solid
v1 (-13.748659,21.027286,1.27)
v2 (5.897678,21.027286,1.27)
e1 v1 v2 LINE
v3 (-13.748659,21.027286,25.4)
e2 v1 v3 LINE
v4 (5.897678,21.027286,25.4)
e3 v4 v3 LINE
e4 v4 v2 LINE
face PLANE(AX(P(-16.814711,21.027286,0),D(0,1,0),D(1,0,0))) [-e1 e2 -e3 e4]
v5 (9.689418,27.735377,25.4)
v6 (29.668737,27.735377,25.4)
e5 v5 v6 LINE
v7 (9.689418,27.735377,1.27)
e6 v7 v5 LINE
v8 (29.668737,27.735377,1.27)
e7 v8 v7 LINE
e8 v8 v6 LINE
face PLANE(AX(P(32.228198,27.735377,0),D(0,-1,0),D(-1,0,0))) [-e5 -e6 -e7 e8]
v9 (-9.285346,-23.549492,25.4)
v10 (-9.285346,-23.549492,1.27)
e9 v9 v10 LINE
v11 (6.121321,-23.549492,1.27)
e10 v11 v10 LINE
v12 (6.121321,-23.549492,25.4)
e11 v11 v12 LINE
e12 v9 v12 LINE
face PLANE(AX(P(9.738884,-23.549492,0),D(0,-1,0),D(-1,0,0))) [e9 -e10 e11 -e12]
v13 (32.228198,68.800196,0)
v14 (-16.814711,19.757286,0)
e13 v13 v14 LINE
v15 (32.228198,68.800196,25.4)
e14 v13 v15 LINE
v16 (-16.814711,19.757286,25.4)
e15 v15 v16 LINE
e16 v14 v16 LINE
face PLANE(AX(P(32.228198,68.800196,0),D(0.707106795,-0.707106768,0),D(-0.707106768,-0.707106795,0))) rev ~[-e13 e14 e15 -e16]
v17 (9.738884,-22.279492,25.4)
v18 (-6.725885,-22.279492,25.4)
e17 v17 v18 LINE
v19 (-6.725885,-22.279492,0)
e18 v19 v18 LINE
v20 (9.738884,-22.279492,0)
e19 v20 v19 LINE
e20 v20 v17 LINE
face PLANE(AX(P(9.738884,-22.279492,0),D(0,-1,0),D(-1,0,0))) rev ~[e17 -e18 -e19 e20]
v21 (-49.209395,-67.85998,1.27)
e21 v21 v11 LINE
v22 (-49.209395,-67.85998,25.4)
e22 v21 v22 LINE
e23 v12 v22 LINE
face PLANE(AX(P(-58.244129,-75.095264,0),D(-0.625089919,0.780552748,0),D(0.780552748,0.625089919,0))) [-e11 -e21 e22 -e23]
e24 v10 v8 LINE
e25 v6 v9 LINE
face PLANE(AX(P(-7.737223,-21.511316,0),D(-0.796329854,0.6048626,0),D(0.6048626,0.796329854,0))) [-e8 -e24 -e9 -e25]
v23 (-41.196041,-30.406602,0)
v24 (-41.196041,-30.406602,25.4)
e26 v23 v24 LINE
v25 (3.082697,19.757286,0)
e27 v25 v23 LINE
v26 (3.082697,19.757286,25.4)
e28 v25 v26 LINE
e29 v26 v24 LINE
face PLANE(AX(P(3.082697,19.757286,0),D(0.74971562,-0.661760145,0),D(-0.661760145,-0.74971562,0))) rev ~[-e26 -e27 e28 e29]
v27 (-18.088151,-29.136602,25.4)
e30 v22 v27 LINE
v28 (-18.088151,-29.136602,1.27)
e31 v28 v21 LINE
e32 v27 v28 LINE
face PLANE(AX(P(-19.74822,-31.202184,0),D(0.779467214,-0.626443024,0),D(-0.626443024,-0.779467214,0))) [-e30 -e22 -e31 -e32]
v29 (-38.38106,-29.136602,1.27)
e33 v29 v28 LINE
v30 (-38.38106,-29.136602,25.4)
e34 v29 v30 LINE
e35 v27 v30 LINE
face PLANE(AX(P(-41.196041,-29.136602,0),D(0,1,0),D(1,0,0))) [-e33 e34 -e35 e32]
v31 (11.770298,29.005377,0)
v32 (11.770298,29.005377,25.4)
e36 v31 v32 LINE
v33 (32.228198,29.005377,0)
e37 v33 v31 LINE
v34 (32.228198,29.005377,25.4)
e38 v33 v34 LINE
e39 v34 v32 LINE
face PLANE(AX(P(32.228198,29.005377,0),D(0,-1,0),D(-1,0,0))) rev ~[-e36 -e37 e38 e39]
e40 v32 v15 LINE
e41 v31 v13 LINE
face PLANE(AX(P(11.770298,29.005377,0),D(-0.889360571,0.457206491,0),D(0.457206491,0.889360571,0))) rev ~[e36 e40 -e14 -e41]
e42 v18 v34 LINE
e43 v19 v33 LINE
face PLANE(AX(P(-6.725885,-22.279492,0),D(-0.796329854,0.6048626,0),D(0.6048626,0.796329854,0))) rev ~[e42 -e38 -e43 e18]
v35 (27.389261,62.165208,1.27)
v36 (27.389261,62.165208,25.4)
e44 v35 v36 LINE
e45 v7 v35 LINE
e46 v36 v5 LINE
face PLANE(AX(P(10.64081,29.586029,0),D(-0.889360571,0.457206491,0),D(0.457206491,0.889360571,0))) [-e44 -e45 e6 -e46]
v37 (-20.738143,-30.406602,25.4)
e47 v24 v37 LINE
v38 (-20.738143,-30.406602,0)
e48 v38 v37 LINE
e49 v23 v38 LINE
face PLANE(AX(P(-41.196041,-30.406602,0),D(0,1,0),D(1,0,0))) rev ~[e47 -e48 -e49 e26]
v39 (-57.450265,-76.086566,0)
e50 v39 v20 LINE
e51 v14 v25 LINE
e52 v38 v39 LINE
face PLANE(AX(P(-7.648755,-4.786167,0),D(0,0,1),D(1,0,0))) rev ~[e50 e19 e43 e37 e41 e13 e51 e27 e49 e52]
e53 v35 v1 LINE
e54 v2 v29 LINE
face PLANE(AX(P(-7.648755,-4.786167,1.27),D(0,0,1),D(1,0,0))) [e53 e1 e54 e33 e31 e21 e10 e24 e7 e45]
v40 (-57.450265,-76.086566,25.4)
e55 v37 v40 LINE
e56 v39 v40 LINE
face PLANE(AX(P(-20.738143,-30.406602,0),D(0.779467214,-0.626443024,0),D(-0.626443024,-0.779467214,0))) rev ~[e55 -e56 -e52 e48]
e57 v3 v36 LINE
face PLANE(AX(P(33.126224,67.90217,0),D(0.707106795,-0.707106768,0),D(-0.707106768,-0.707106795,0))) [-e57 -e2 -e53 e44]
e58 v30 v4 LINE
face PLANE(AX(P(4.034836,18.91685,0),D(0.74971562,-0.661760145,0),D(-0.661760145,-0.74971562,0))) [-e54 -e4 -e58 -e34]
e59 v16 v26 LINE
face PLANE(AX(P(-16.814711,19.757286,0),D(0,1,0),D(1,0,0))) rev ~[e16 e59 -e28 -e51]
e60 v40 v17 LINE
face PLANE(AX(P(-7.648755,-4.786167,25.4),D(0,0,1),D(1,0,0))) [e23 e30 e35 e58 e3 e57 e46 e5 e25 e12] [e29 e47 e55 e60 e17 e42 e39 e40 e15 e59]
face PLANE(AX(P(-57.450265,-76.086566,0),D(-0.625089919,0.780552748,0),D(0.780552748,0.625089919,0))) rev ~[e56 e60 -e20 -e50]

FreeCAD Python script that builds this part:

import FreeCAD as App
import Part
import Sketcher
Q = App.Units.Quantity


def faces_at(feature, points):
    """Names of the faces that lie closest to the given points."""
    faces = feature.Shape.Faces
    near = lambda p: min(range(len(faces)), key=lambda i: faces[i].distToShape(Part.Vertex(*p))[0])
    return sorted({f"Face{near(p) + 1}" for p in points})

doc = App.newDocument("Part")
body = doc.addObject("PartDesign::Body", "Body")

# Sketch on XY plane
sketch1 = body.newObject("Sketcher::SketchObject", "Sketch")
sketch1.AttachmentSupport = (doc.getObject("XY_Plane"), [""])
sketch1.MapMode = "FlatFace"
sketch1.addGeometry([
    Part.LineSegment(App.Vector(11.770298, 29.005377, 0), App.Vector(32.228198, 68.800196, 0)),  # 0
    Part.LineSegment(App.Vector(32.228198, 68.800196, 0), App.Vector(-16.814711, 19.757286, 0)),  # 1
    Part.LineSegment(App.Vector(-16.814711, 19.757286, 0), App.Vector(3.082697, 19.757286, 0)),  # 2
    Part.LineSegment(App.Vector(3.082697, 19.757286, 0), App.Vector(-41.196041, -30.406602, 0)),  # 3
    Part.LineSegment(App.Vector(-41.196041, -30.406602, 0), App.Vector(-20.738143, -30.406602, 0)),  # 4
    Part.LineSegment(App.Vector(-20.738143, -30.406602, 0), App.Vector(-57.450265, -76.086566, 0)),  # 5
    Part.LineSegment(App.Vector(-57.450265, -76.086566, 0), App.Vector(9.738884, -22.279492, 0)),  # 6
    Part.LineSegment(App.Vector(9.738884, -22.279492, 0), App.Vector(-6.725885, -22.279492, 0)),  # 7
    Part.LineSegment(App.Vector(-6.725885, -22.279492, 0), App.Vector(32.228198, 29.005377, 0)),  # 8
    Part.LineSegment(App.Vector(32.228198, 29.005377, 0), App.Vector(11.770298, 29.005377, 0)),  # 9
], False)
sketch1.addConstraint([
    Sketcher.Constraint("Coincident", 0, 2, 1, 1),
    Sketcher.Constraint("Coincident", 1, 2, 2, 1),
    Sketcher.Constraint("Coincident", 2, 2, 3, 1),
    Sketcher.Constraint("Coincident", 3, 2, 4, 1),
    Sketcher.Constraint("Coincident", 4, 2, 5, 1),
    Sketcher.Constraint("Coincident", 5, 2, 6, 1),
    Sketcher.Constraint("Coincident", 6, 2, 7, 1),
    Sketcher.Constraint("Coincident", 7, 2, 8, 1),
    Sketcher.Constraint("Coincident", 8, 2, 9, 1),
    Sketcher.Constraint("Coincident", 9, 2, 0, 1),
    Sketcher.Constraint("Horizontal", 2),
    Sketcher.Constraint("Horizontal", 4),
    Sketcher.Constraint("Horizontal", 7),
    Sketcher.Constraint("Horizontal", 9),
    Sketcher.Constraint("Vertical", 0, 2, 8, 2),
    Sketcher.Constraint("Angle", 1, Q("-134.999999 deg")),
    Sketcher.Constraint("DistanceX", 9, 2, 9, 1, Q("20.4579 mm")),
    Sketcher.Constraint("DistanceX", 7, 2, 7, 1, Q("16.464769 mm")),
    Sketcher.Constraint("DistanceY", 3, 2, -1, 1, Q("30.406602 mm")),
    Sketcher.Constraint("DistanceX", 2, 2, 0, 2, Q("29.145501 mm")),
    Sketcher.Constraint("Distance", 0, Q("44.745428 mm")),
    Sketcher.Constraint("Distance", 8, Q("64.401539 mm")),
    Sketcher.Constraint("DistanceX", 2, 1, 2, 2, Q("19.897408 mm")),
    Sketcher.Constraint("DistanceX", 4, 1, 4, 2, Q("20.457897 mm")),
    Sketcher.Constraint("DistanceX", 1, 2, -1, 1, Q("16.814711 mm")),
    Sketcher.Constraint("DistanceX", 3, 2, -1, 1, Q("41.196041 mm")),
    Sketcher.Constraint("DistanceY", 6, 2, -1, 1, Q("22.279492 mm")),
    Sketcher.Constraint("DistanceX", 5, 2, 4, 2, Q("36.712121 mm")),
    Sketcher.Constraint("DistanceY", 5, 2, 1, 2, Q("95.843852 mm")),
    Sketcher.Constraint("DistanceX", 5, 2, 6, 2, Q("67.189149 mm")),
])
pad1 = body.newObject("PartDesign::Pad", "Pad")
pad1.Profile = sketch1
pad1.Length = Q("1 in")
doc.recompute()

thickness = body.newObject("PartDesign::Thickness", "Thickness")
thickness.Base = (pad1, faces_at(pad1, [(-12.611, -3.643, 25.4)]))
thickness.Value = Q("0.05 in")
thickness.Reversed = True
thickness.Join = "Intersection"

doc.recompute()
